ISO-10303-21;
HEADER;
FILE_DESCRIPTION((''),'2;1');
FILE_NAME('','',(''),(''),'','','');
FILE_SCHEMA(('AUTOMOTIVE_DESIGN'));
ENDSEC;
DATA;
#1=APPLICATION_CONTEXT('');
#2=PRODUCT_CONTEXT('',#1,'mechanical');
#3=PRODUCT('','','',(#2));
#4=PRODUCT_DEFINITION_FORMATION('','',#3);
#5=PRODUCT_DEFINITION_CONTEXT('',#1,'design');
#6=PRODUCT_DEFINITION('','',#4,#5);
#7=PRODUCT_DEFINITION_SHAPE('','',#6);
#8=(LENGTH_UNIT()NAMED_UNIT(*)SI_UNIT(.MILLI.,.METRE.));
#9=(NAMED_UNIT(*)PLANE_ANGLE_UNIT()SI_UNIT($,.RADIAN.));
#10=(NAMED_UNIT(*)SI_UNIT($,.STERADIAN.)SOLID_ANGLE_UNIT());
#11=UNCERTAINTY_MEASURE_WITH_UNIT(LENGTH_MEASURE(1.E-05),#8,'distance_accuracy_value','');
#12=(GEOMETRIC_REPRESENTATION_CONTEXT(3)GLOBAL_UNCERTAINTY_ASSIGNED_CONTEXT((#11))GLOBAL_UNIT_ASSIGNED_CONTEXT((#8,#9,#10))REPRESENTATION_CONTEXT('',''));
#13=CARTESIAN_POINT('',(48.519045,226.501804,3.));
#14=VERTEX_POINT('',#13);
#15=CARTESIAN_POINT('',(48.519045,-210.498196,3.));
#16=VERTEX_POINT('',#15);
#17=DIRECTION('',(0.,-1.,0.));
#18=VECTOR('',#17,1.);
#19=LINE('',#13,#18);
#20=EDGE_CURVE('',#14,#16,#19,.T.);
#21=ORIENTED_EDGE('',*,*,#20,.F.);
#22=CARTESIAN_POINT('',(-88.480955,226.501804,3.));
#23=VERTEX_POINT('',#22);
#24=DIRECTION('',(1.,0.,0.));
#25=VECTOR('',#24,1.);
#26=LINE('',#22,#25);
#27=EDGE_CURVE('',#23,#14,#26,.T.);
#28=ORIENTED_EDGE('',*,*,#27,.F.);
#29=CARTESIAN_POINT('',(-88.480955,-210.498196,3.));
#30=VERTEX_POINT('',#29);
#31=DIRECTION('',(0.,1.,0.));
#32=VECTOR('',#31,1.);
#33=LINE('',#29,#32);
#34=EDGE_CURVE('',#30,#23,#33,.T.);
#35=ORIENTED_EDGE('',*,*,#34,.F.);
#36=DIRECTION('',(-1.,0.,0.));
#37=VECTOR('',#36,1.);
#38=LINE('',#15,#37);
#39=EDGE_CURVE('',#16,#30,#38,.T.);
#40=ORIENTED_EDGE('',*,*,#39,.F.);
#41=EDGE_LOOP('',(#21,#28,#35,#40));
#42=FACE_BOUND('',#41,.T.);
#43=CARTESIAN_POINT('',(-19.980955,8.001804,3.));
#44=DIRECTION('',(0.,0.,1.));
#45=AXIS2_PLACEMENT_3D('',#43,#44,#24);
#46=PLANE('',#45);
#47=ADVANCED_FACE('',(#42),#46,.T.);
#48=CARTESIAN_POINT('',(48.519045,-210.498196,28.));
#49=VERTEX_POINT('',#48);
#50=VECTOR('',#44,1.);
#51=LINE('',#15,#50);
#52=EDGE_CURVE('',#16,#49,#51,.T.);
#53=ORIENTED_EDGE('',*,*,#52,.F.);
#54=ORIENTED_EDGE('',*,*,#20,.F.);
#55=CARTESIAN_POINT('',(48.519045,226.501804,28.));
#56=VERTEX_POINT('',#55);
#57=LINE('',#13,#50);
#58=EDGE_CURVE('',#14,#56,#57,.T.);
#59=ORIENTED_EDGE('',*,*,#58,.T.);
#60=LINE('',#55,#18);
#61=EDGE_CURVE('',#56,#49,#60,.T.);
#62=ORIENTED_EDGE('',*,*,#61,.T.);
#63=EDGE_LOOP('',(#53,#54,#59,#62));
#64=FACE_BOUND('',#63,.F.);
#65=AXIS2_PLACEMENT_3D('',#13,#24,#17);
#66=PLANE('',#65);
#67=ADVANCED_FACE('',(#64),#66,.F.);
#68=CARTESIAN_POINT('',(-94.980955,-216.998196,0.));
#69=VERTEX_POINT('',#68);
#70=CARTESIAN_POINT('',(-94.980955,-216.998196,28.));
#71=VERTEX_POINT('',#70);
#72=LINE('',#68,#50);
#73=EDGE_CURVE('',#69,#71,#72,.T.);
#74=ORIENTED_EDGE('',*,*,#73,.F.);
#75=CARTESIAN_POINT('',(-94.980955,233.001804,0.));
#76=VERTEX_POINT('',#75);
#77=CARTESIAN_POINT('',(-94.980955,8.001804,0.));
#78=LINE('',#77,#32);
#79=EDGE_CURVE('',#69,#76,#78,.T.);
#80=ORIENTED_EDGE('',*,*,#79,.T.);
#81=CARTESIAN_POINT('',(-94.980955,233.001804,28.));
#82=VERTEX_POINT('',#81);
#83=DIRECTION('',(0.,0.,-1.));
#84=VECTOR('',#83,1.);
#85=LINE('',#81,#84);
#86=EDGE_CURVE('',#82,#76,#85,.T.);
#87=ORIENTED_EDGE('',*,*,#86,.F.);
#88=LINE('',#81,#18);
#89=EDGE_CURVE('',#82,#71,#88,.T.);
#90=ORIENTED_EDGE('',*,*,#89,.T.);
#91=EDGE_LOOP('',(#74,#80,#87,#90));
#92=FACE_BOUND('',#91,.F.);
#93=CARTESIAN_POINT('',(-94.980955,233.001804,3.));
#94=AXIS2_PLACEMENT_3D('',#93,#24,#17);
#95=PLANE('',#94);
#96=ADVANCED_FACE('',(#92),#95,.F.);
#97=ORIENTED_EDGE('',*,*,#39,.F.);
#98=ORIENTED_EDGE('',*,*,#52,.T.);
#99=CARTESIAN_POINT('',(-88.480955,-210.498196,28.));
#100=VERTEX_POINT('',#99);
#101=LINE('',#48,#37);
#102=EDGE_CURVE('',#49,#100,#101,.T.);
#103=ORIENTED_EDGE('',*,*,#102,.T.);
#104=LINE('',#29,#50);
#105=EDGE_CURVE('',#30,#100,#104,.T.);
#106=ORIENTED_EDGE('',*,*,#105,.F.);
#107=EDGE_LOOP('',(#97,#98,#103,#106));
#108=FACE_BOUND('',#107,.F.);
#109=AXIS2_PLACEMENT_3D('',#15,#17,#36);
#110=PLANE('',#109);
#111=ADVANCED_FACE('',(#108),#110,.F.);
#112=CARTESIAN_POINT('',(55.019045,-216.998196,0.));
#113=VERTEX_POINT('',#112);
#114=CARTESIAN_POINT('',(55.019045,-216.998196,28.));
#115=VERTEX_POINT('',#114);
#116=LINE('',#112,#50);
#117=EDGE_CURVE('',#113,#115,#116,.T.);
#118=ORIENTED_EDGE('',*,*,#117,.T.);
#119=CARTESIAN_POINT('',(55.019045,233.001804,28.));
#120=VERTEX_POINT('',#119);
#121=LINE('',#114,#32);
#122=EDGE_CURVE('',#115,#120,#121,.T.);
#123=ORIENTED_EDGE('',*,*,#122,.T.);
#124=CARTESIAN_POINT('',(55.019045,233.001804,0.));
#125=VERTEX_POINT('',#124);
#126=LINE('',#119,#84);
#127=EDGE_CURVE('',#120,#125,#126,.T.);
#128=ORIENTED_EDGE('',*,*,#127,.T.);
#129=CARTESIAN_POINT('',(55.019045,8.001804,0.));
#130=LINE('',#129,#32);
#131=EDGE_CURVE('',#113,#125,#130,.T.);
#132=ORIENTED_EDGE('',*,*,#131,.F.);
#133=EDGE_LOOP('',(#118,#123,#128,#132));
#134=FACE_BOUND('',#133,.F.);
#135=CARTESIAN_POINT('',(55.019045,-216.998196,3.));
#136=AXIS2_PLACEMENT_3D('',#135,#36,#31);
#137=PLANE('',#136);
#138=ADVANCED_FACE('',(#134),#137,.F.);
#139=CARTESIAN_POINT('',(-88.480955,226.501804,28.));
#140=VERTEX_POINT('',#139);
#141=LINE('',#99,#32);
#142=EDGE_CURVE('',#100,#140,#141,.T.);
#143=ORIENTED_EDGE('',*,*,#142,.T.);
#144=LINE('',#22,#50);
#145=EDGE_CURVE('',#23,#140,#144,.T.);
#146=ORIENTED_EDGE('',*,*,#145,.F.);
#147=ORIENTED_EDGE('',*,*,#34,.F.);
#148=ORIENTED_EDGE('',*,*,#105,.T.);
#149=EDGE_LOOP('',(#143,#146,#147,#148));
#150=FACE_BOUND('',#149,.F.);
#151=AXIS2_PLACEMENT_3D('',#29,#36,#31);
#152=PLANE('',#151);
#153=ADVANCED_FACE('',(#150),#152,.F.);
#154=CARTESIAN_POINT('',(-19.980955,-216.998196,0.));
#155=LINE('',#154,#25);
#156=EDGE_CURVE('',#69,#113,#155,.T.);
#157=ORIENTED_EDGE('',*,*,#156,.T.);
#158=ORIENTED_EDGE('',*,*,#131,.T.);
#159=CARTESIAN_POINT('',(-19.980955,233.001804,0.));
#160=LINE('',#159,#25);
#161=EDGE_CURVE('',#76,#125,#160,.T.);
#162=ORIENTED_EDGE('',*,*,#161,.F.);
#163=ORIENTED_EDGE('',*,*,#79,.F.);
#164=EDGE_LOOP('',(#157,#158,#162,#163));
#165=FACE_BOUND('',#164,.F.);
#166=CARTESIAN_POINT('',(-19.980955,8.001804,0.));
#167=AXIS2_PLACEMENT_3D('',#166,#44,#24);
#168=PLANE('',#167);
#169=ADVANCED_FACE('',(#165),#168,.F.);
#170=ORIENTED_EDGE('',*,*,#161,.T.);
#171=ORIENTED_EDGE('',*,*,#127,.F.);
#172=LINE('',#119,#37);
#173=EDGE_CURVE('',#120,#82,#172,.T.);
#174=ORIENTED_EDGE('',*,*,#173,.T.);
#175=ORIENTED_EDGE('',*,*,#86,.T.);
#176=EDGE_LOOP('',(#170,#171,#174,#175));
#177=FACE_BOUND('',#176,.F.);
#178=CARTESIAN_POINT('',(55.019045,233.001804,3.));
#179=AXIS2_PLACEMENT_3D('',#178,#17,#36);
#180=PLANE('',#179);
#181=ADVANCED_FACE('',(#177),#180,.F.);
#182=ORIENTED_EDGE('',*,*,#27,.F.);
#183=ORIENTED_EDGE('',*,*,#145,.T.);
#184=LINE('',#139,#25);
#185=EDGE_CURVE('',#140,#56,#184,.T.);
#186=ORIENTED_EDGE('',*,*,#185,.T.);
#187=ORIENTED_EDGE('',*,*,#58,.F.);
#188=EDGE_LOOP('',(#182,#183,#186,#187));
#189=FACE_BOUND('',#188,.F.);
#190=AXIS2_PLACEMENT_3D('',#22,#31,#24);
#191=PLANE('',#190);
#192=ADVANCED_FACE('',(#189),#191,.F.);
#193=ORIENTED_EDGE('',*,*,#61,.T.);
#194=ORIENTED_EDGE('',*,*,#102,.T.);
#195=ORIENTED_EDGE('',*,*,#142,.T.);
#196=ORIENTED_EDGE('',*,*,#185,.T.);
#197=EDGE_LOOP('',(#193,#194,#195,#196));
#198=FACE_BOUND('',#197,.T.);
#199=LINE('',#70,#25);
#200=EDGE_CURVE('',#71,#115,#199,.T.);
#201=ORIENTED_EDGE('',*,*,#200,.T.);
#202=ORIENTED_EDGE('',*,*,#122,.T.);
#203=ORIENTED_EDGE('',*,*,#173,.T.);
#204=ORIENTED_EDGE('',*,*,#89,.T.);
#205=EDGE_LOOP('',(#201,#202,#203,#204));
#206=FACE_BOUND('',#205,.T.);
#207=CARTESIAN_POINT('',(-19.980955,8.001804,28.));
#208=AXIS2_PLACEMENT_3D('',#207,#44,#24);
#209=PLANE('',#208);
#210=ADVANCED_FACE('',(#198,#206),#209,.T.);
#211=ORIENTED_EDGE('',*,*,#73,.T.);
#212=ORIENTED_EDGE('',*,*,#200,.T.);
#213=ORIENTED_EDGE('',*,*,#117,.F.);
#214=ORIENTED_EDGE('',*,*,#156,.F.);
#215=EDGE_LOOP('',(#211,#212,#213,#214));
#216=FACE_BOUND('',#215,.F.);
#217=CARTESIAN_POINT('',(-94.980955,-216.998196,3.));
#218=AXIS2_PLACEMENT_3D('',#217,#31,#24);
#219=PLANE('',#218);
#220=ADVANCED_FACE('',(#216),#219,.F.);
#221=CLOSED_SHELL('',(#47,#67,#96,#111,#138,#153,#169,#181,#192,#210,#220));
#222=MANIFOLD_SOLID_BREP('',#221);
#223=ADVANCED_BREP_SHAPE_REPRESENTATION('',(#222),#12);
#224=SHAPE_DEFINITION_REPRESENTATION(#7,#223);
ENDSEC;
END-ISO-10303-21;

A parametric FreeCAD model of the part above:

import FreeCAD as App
import Part
import Sketcher

V = App.Vector
Q = App.Units.Quantity


def add_polygon(sketch, points):
    """Adds a closed chain of lines whose ends are joined by coincident constraints."""
    first, n = sketch.GeometryCount, len(points)
    for a, b in zip(points, points[1:] + points[:1]):
        sketch.addGeometry(Part.LineSegment(App.Vector(*a, 0), App.Vector(*b, 0)), False)
    for i in range(n):
        sketch.addConstraint(Sketcher.Constraint("Coincident", first + i, 2, first + (i + 1) % n, 1))

doc = App.newDocument("Part")
params = doc.addObject("Spreadsheet::Sheet", "Params")
for row, (alias, value) in enumerate([
    ("sketch1_width", "150 mm"),
    ("sketch1_height", "450 mm"),
    ("pad1_length", "3 mm"),
    ("sketch2_width", "150 mm"),
    ("sketch2_width2", "137 mm"),
    ("sketch2_height", "450 mm"),
    ("sketch2_height2", "437 mm"),
    ("pad2_length", "25 mm"),
], start=1):
    params.set(f"A{row}", alias)
    params.set(f"B{row}", "=" + value)
    params.setAlias(f"B{row}", alias)

body = doc.addObject("PartDesign::Body", "Body")

sketch1 = doc.addObject("Sketcher::SketchObject", "Sketch")
body.addObject(sketch1)
sketch1.AttachmentSupport = (doc.XY_Plane, [""])
sketch1.MapMode = "FlatFace"
add_polygon(sketch1, [(-95, 233), (-95, -217), (55, -217), (55, 233)])
sketch1.addConstraint([
    Sketcher.Constraint("Vertical", 0),
    Sketcher.Constraint("Horizontal", 1),
    Sketcher.Constraint("Vertical", 2),
    Sketcher.Constraint("Horizontal", 3),
    Sketcher.Constraint("DistanceX", 1, 1, 1, 2, Q("150 mm")),
    Sketcher.Constraint("DistanceY", 0, 2, 0, 1, Q("450 mm")),
    Sketcher.Constraint("DistanceX", 0, 2, -1, 1, Q("94.980955 mm")),
    Sketcher.Constraint("DistanceY", 0, 2, -1, 1, Q("216.998196 mm")),
])
sketch1.setExpression("Constraints[8]", "Params.sketch1_width")
sketch1.setExpression("Constraints[9]", "Params.sketch1_height")
pad1 = doc.addObject("PartDesign::Pad", "Pad")
body.addObject(pad1)
pad1.Profile = sketch1
pad1.setExpression("Length", "Params.pad1_length")

sketch2 = doc.addObject("Sketcher::SketchObject", "Sketch001")
body.addObject(sketch2)
sketch2.AttachmentSupport = (doc.XY_Plane, [""])
sketch2.MapMode = "FlatFace"
sketch2.AttachmentOffset = App.Placement(V(0, 0, 3), App.Rotation())
add_polygon(sketch2, [(-95, 233), (-95, -217), (55, -217), (55, 233)])
add_polygon(sketch2, [(-88, 227), (49, 227), (49, -210), (-88, -210)])
sketch2.addConstraint([
    Sketcher.Constraint("Vertical", 0),
    Sketcher.Constraint("Horizontal", 1),
    Sketcher.Constraint("Vertical", 2),
    Sketcher.Constraint("Horizontal", 3),
    Sketcher.Constraint("Horizontal", 4),
    Sketcher.Constraint("Vertical", 5),
    Sketcher.Constraint("Horizontal", 6),
    Sketcher.Constraint("Vertical", 7),
    Sketcher.Constraint("DistanceX", 1, 1, 1, 2, Q("150 mm")),
    Sketcher.Constraint("DistanceX", 4, 1, 4, 2, Q("137 mm")),
    Sketcher.Constraint("DistanceY", 0, 2, 0, 1, Q("450 mm")),
    Sketcher.Constraint("DistanceY", 5, 2, 5, 1, Q("437 mm")),
    Sketcher.Constraint("DistanceX", 4, 2, 2, 2, Q("6.5 mm")),
    Sketcher.Constraint("DistanceY", 4, 2, 2, 2, Q("6.5 mm")),
    Sketcher.Constraint("DistanceX", 0, 2, -1, 1, Q("94.980955 mm")),
    Sketcher.Constraint("DistanceY", 0, 2, -1, 1, Q("216.998196 mm")),
])
sketch2.setExpression("Constraints[16]", "Params.sketch2_width")
sketch2.setExpression("Constraints[17]", "Params.sketch2_width2")
sketch2.setExpression("Constraints[18]", "Params.sketch2_height")
sketch2.setExpression("Constraints[19]", "Params.sketch2_height2")
pad2 = doc.addObject("PartDesign::Pad", "Pad001")
body.addObject(pad2)
pad2.Profile = sketch2
pad2.setExpression("Length", "Params.pad2_length")

doc.recompute()
